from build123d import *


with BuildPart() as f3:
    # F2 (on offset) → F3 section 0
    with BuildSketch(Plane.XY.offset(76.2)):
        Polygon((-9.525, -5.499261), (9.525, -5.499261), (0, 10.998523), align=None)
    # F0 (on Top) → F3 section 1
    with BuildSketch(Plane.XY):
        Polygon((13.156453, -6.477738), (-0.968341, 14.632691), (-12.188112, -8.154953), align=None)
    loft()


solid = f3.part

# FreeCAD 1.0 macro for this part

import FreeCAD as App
import Part
import Sketcher
Q = App.Units.Quantity

doc = App.newDocument("Part")
body = doc.addObject("PartDesign::Body", "Body")

sketch1 = body.newObject("Sketcher::SketchObject", "Sketch")
sketch1.AttachmentSupport = (doc.getObject("XY_Plane"), [""])
sketch1.MapMode = "FlatFace"
sketch1.AttachmentOffset = App.Placement(App.Vector(0, 0, 3 * 25.4), App.Rotation())
sketch1.addGeometry(Part.LineSegment(App.Vector(-10, -5, 0), App.Vector(10, -5, 0)), False)
sketch1.addGeometry(Part.LineSegment(App.Vector(10, -5, 0), App.Vector(0, 11, 0)), False)
sketch1.addGeometry(Part.LineSegment(App.Vector(0, 11, 0), App.Vector(-10, -5, 0)), False)
sketch1.addConstraint(Sketcher.Constraint("Coincident", 0, 2, 1, 1))
sketch1.addConstraint(Sketcher.Constraint("Coincident", 1, 2, 2, 1))
sketch1.addConstraint(Sketcher.Constraint("Coincident", 2, 2, 0, 1))
sketch1.addConstraint(Sketcher.Constraint("Horizontal", 0))
sketch1.addConstraint(Sketcher.Constraint("PointOnObject", 1, 2, -2))
sketch1.addConstraint(Sketcher.Constraint("Equal", 1, 2))
sketch1.addConstraint(Sketcher.Constraint("Angle", 1, Q("120 deg")))
sketch1.addConstraint(Sketcher.Constraint("DistanceX", 0, 1, 0, 2, Q("0.75 in")))
sketch1.addConstraint(Sketcher.Constraint("DistanceY", 0, 2, -1, 1, 5.499261))

sketch2 = body.newObject("Sketcher::SketchObject", "Sketch001")
sketch2.AttachmentSupport = (doc.getObject("XY_Plane"), [""])
sketch2.MapMode = "FlatFace"
sketch2.addGeometry(Part.LineSegment(App.Vector(13, -6, 0), App.Vector(-1, 15, 0)), False)
sketch2.addGeometry(Part.LineSegment(App.Vector(-1, 15, 0), App.Vector(-12, -8, 0)), False)
sketch2.addGeometry(Part.LineSegment(App.Vector(-12, -8, 0), App.Vector(13, -6, 0)), False)
sketch2.addConstraint(Sketcher.Constraint("Coincident", 0, 2, 1, 1))
sketch2.addConstraint(Sketcher.Constraint("Coincident", 1, 2, 2, 1))
sketch2.addConstraint(Sketcher.Constraint("Coincident", 2, 2, 0, 1))
sketch2.addConstraint(Sketcher.Constraint("Equal", 0, 1))
sketch2.addConstraint(Sketcher.Constraint("Equal", 1, 2))
sketch2.addConstraint(Sketcher.Constraint("Distance", 0, Q("1 in")))
sketch2.addConstraint(Sketcher.Constraint("DistanceX", 0, 2, -1, 1, 0.968341))
sketch2.addConstraint(Sketcher.Constraint("DistanceY", -1, 1, 0, 2, 14.632691))
sketch2.addConstraint(Sketcher.Constraint("DistanceY", 2, 2, -1, 1, 6.477738))

additiveloft = body.newObject("PartDesign::AdditiveLoft", "AdditiveLoft")
additiveloft.Profile = sketch1
additiveloft.Sections = [sketch2]

doc.recompute()
